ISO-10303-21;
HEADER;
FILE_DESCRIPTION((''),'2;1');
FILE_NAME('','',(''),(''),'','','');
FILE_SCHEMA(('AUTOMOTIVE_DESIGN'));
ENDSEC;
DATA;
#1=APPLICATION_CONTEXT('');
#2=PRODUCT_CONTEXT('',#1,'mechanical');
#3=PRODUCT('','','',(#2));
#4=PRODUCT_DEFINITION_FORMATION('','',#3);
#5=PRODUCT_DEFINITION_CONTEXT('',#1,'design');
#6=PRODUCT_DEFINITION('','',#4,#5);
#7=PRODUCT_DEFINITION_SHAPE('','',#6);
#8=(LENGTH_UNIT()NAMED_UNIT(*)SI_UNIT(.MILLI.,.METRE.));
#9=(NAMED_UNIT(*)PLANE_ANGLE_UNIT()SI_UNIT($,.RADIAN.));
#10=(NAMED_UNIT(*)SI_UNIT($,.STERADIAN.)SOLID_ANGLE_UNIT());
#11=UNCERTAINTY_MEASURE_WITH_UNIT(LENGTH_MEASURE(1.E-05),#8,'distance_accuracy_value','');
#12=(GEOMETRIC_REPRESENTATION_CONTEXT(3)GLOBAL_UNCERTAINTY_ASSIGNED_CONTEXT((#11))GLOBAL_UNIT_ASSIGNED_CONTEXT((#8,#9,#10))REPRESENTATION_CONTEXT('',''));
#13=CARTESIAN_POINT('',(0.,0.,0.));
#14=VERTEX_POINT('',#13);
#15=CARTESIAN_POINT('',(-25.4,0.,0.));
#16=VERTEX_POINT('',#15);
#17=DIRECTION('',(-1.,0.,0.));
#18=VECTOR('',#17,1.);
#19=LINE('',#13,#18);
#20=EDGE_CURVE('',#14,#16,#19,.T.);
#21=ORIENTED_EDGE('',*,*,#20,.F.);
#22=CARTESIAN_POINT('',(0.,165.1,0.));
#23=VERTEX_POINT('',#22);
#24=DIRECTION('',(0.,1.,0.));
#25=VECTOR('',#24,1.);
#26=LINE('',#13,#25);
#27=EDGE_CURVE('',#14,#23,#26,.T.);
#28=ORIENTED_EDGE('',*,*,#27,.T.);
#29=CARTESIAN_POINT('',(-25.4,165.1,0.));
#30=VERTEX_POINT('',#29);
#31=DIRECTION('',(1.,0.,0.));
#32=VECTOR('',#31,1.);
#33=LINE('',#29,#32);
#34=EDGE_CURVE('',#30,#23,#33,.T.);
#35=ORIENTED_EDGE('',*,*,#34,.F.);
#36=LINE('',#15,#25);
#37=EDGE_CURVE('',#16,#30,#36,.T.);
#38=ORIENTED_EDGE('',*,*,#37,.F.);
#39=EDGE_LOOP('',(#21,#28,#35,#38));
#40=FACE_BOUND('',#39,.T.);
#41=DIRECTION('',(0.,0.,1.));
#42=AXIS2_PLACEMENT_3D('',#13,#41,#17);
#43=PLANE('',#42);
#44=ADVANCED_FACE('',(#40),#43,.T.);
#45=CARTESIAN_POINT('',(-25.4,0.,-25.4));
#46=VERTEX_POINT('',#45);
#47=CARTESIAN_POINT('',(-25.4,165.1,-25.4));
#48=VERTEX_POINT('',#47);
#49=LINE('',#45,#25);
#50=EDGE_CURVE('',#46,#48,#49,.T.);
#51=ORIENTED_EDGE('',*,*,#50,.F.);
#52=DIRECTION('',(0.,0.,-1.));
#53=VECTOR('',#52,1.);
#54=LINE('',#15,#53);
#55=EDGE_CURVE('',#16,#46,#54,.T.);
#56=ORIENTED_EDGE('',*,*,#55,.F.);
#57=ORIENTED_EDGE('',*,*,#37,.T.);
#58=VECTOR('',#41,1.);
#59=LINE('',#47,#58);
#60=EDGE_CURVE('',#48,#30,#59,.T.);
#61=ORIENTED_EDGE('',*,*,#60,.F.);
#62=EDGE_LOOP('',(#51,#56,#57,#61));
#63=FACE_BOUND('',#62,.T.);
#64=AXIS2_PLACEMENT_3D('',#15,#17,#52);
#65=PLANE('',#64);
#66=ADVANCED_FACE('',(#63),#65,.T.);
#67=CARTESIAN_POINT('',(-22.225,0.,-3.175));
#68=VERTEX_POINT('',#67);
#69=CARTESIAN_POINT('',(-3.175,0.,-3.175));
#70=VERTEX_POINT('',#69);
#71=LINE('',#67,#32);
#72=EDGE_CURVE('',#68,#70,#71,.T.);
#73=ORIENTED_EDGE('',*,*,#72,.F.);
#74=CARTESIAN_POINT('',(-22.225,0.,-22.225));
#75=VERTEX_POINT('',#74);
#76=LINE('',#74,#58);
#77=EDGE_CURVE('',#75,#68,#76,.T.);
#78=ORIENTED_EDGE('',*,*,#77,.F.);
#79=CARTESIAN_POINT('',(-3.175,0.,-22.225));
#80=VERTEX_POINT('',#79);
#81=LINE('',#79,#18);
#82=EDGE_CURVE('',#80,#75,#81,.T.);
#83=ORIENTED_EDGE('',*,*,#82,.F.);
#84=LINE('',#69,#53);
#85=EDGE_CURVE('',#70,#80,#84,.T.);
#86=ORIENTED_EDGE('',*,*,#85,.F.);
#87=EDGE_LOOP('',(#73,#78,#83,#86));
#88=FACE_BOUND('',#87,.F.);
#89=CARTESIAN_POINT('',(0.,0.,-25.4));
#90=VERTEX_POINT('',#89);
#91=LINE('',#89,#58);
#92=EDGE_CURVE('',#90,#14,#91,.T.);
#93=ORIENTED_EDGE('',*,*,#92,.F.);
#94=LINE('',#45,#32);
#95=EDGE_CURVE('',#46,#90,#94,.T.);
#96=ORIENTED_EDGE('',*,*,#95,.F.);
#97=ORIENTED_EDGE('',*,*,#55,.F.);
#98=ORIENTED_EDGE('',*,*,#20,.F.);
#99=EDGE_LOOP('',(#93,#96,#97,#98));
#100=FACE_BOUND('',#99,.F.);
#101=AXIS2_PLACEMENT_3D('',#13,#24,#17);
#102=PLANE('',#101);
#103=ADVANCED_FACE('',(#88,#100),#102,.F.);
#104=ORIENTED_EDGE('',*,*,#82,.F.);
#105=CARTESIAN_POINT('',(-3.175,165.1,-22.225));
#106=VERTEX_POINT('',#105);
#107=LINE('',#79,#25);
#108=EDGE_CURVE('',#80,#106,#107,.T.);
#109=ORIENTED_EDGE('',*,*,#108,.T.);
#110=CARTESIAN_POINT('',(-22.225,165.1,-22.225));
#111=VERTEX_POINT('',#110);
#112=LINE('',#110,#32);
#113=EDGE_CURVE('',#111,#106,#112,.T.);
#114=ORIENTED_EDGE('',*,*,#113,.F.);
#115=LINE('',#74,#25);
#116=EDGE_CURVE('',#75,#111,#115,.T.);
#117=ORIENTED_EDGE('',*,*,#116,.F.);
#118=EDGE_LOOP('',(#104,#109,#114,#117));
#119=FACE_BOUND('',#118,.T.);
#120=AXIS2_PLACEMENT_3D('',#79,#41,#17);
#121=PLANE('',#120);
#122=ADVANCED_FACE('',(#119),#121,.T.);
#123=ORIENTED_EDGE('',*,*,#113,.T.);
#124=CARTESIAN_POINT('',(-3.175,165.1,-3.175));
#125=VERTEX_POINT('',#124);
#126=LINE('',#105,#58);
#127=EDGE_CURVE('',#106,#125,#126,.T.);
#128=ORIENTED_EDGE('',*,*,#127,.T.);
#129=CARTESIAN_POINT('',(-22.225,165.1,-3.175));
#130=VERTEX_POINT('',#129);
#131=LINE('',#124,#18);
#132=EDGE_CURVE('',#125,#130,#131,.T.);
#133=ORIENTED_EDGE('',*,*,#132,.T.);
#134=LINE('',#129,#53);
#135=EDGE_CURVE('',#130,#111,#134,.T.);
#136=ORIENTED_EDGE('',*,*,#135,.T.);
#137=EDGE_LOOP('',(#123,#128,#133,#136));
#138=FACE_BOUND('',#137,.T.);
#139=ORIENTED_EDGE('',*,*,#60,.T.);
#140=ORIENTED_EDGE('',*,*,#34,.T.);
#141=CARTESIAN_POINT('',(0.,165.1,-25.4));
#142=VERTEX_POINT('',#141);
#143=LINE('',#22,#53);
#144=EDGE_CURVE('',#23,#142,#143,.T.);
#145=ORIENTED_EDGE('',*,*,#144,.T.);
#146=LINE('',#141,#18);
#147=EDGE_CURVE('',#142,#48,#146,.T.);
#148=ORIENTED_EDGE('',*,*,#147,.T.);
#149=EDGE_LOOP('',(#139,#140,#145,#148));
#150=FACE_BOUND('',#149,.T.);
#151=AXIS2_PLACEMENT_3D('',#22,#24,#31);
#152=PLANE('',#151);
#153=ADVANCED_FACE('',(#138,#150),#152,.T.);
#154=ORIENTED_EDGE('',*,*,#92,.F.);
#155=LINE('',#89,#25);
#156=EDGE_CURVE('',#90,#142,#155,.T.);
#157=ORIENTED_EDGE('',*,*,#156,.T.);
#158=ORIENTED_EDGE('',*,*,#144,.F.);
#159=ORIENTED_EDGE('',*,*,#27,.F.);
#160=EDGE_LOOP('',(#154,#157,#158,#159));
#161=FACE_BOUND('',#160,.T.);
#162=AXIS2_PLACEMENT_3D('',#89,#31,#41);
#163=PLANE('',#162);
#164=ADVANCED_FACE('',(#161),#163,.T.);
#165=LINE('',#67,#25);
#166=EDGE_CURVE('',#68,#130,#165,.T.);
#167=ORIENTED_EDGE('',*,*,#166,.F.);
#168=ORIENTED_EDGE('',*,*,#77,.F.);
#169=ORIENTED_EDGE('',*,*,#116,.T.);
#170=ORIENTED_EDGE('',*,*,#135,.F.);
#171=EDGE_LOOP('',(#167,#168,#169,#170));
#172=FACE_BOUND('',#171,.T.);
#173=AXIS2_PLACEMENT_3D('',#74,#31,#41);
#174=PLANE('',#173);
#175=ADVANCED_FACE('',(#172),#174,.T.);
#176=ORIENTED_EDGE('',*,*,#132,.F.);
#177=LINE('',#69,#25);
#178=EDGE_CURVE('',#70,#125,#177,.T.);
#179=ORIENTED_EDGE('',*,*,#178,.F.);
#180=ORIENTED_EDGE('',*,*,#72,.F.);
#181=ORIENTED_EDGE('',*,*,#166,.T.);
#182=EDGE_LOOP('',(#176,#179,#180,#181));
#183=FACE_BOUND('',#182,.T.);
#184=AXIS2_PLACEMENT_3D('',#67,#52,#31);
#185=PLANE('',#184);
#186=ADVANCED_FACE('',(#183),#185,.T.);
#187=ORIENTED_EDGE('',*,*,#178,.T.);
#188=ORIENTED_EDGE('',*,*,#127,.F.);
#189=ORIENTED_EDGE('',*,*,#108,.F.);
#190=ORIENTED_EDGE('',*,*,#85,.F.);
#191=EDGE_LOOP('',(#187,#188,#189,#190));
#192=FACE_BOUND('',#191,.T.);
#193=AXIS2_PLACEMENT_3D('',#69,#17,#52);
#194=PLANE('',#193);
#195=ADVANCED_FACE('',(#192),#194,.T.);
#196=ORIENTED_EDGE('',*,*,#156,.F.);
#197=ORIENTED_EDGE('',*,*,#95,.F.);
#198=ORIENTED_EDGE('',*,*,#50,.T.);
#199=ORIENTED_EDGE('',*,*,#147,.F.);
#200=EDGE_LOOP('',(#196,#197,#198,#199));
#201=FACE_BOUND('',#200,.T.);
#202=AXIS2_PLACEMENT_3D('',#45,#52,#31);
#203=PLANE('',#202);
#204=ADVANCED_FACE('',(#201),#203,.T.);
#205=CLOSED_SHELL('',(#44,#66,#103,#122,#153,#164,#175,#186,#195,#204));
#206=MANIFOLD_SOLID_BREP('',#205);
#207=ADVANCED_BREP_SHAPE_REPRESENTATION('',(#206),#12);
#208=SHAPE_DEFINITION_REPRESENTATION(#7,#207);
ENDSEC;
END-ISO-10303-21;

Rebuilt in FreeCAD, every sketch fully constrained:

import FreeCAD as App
import Part
import Sketcher

V = App.Vector
Q = App.Units.Quantity

doc = App.newDocument("Part")
body = doc.addObject("PartDesign::Body", "Body")

sketch1 = body.newObject("Sketcher::SketchObject", "Sketch")
sketch1.AttachmentSupport = (doc.getObject("XZ_Plane"), [""])
sketch1.MapMode = "FlatFace"
sketch1.addGeometry(Part.LineSegment(V(-25, 0, 0), V(0, 0, 0)), False)
sketch1.addGeometry(Part.LineSegment(V(0, 0, 0), V(0, -25, 0)), False)
sketch1.addGeometry(Part.LineSegment(V(0, -25, 0), V(-25, -25, 0)), False)
sketch1.addGeometry(Part.LineSegment(V(-25, -25, 0), V(-25, 0, 0)), False)
sketch1.addGeometry(Part.LineSegment(V(-3, -3, 0), V(-22, -3, 0)), False)
sketch1.addGeometry(Part.LineSegment(V(-22, -3, 0), V(-22, -22, 0)), False)
sketch1.addGeometry(Part.LineSegment(V(-22, -22, 0), V(-3, -22, 0)), False)
sketch1.addGeometry(Part.LineSegment(V(-3, -22, 0), V(-3, -3, 0)), False)
sketch1.addConstraint(Sketcher.Constraint("Coincident", 0, 2, 1, 1))
sketch1.addConstraint(Sketcher.Constraint("Coincident", 1, 2, 2, 1))
sketch1.addConstraint(Sketcher.Constraint("Coincident", 2, 2, 3, 1))
sketch1.addConstraint(Sketcher.Constraint("Coincident", 3, 2, 0, 1))
sketch1.addConstraint(Sketcher.Constraint("Coincident", 4, 2, 5, 1))
sketch1.addConstraint(Sketcher.Constraint("Coincident", 5, 2, 6, 1))
sketch1.addConstraint(Sketcher.Constraint("Coincident", 6, 2, 7, 1))
sketch1.addConstraint(Sketcher.Constraint("Coincident", 7, 2, 4, 1))
sketch1.addConstraint(Sketcher.Constraint("Horizontal", 0))
sketch1.addConstraint(Sketcher.Constraint("Vertical", 1))
sketch1.addConstraint(Sketcher.Constraint("Horizontal", 2))
sketch1.addConstraint(Sketcher.Constraint("Vertical", 3))
sketch1.addConstraint(Sketcher.Constraint("Horizontal", 4))
sketch1.addConstraint(Sketcher.Constraint("Vertical", 5))
sketch1.addConstraint(Sketcher.Constraint("Horizontal", 6))
sketch1.addConstraint(Sketcher.Constraint("Vertical", 7))
sketch1.addConstraint(Sketcher.Constraint("Coincident", 0, 2, -1, 1))
sketch1.addConstraint(Sketcher.Constraint("Equal", 2, 1))
sketch1.addConstraint(Sketcher.Constraint("Equal", 6, 5))
sketch1.addConstraint(Sketcher.Constraint("DistanceX", 0, 1, 0, 2, Q("1 in")))
sketch1.addConstraint(Sketcher.Constraint("DistanceY", 4, 2, -1, 1, Q("0.125 in")))
sketch1.addConstraint(Sketcher.Constraint("DistanceX", 6, 2, -1, 1, Q("0.125 in")))
sketch1.addConstraint(Sketcher.Constraint("DistanceX", 3, 2, 4, 2, Q("0.125 in")))
pad1 = body.newObject("PartDesign::Pad", "Pad")
pad1.Profile = sketch1
pad1.Length = Q("8.5 in")
pad1.Reversed = True

sketch2 = body.newObject("Sketcher::SketchObject", "Sketch001")
sketch2.AttachmentSupport = (doc.getObject("XZ_Plane"), [""])
sketch2.MapMode = "FlatFace"
sketch2.AttachmentOffset = App.Placement(V(0, 0, -8.5 * 25.4), App.Rotation())
sketch2.addGeometry(Part.LineSegment(V(-25, -25, 0), V(-25, 0, 0)), False)
sketch2.addGeometry(Part.LineSegment(V(-25, 0, 0), V(0, 0, 0)), False)
sketch2.addGeometry(Part.LineSegment(V(0, 0, 0), V(0, -25, 0)), False)
sketch2.addGeometry(Part.LineSegment(V(0, -25, 0), V(-25, -25, 0)), False)
sketch2.addGeometry(Part.LineSegment(V(-3, -3, 0), V(-22, -3, 0)), False)
sketch2.addGeometry(Part.LineSegment(V(-22, -3, 0), V(-22, -22, 0)), False)
sketch2.addGeometry(Part.LineSegment(V(-22, -22, 0), V(-3, -22, 0)), False)
sketch2.addGeometry(Part.LineSegment(V(-3, -22, 0), V(-3, -3, 0)), False)
sketch2.addConstraint(Sketcher.Constraint("Coincident", 0, 2, 1, 1))
sketch2.addConstraint(Sketcher.Constraint("Coincident", 1, 2, 2, 1))
sketch2.addConstraint(Sketcher.Constraint("Coincident", 2, 2, 3, 1))
sketch2.addConstraint(Sketcher.Constraint("Coincident", 3, 2, 0, 1))
sketch2.addConstraint(Sketcher.Constraint("Coincident", 4, 2, 5, 1))
sketch2.addConstraint(Sketcher.Constraint("Coincident", 5, 2, 6, 1))
sketch2.addConstraint(Sketcher.Constraint("Coincident", 6, 2, 7, 1))
sketch2.addConstraint(Sketcher.Constraint("Coincident", 7, 2, 4, 1))
sketch2.addConstraint(Sketcher.Constraint("Vertical", 0))
sketch2.addConstraint(Sketcher.Constraint("Horizontal", 1))
sketch2.addConstraint(Sketcher.Constraint("Vertical", 2))
sketch2.addConstraint(Sketcher.Constraint("Horizontal", 3))
sketch2.addConstraint(Sketcher.Constraint("Horizontal", 4))
sketch2.addConstraint(Sketcher.Constraint("Vertical", 5))
sketch2.addConstraint(Sketcher.Constraint("Horizontal", 6))
sketch2.addConstraint(Sketcher.Constraint("Vertical", 7))
sketch2.addConstraint(Sketcher.Constraint("Coincident", 1, 2, -1, 1))
sketch2.addConstraint(Sketcher.Constraint("Equal", 3, 0))
sketch2.addConstraint(Sketcher.Constraint("Equal", 6, 5))
sketch2.addConstraint(Sketcher.Constraint("DistanceX", 1, 1, 1, 2, Q("1 in")))
sketch2.addConstraint(Sketcher.Constraint("DistanceX", 4, 2, 4, 1, Q("0.75 in")))
sketch2.addConstraint(Sketcher.Constraint("DistanceX", 4, 2, -1, 1, Q("0.875 in")))
sketch2.addConstraint(Sketcher.Constraint("DistanceY", 4, 2, -1, 1, Q("0.125 in")))
pocket1 = body.newObject("PartDesign::Pocket", "Pocket")
pocket1.Profile = sketch2
pocket1.Length = Q("2 in")
pocket1.Reversed = True

doc.recompute()
